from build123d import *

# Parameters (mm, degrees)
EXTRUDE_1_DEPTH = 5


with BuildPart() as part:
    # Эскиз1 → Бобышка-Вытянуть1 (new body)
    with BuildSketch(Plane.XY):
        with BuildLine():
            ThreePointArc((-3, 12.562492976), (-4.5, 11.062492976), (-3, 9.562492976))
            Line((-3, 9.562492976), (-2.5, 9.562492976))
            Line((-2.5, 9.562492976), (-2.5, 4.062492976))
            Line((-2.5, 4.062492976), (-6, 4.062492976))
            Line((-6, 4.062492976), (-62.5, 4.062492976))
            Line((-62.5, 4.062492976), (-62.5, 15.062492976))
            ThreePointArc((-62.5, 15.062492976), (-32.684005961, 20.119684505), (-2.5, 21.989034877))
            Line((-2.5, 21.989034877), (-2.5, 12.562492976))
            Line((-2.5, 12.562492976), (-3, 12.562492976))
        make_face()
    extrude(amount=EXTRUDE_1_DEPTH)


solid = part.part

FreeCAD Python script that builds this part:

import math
import FreeCAD as App
import Part
import Sketcher
from FreeCAD import Vector
Q = App.Units.Quantity

doc = App.newDocument("Part")
body = doc.addObject("PartDesign::Body", "Body")

# Sketch on XY plane
sketch1 = doc.addObject("Sketcher::SketchObject", "Sketch")
body.addObject(sketch1)
sketch1.AttachmentSupport = (doc.XY_Plane, [""])
sketch1.MapMode = "FlatFace"
sketch1.addGeometry(Part.ArcOfCircle(Part.Circle(Vector(-3, 11.1, 0), Vector(0, 0, 1), 1.5), math.radians(90), math.radians(270)), False)
sketch1.addGeometry(Part.LineSegment(Vector(-3, 12.6, 0), Vector(-2.5, 12.6, 0)), False)
sketch1.addGeometry(Part.LineSegment(Vector(-2.5, 12.6, 0), Vector(-2.5, 22, 0)), False)
sketch1.addGeometry(Part.ArcOfCircle(Part.Circle(Vector(0, -263, 0), Vector(0, 0, 1), 285), math.radians(90.5), math.radians(102.67)), False)
sketch1.addGeometry(Part.LineSegment(Vector(-62.5, 15.1, 0), Vector(-62.5, 4.1, 0)), False)
sketch1.addGeometry(Part.LineSegment(Vector(-62.5, 4.1, 0), Vector(-2.5, 4.1, 0)), False)
sketch1.addGeometry(Part.LineSegment(Vector(-2.5, 4.1, 0), Vector(-2.5, 9.6, 0)), False)
sketch1.addGeometry(Part.LineSegment(Vector(-2.5, 9.6, 0), Vector(-3, 9.6, 0)), False)
sketch1.addConstraint(Sketcher.Constraint("Tangent", 0, 1, 1, 1))
sketch1.addConstraint(Sketcher.Constraint("Coincident", 1, 2, 2, 1))
sketch1.addConstraint(Sketcher.Constraint("Coincident", 2, 2, 3, 1))
sketch1.addConstraint(Sketcher.Constraint("Coincident", 3, 2, 4, 1))
sketch1.addConstraint(Sketcher.Constraint("Coincident", 4, 2, 5, 1))
sketch1.addConstraint(Sketcher.Constraint("Coincident", 5, 2, 6, 1))
sketch1.addConstraint(Sketcher.Constraint("Coincident", 6, 2, 7, 1))
sketch1.addConstraint(Sketcher.Constraint("Tangent", 7, 2, 0, 2))
sketch1.addConstraint(Sketcher.Constraint("Horizontal", 1))
sketch1.addConstraint(Sketcher.Constraint("Vertical", 2))
sketch1.addConstraint(Sketcher.Constraint("Vertical", 4))
sketch1.addConstraint(Sketcher.Constraint("Horizontal", 5))
sketch1.addConstraint(Sketcher.Constraint("Vertical", 6))
sketch1.addConstraint(Sketcher.Constraint("Horizontal", 7))
sketch1.addConstraint(Sketcher.Constraint("PointOnObject", 3, 3, -2))
sketch1.addConstraint(Sketcher.Constraint("Vertical", 2, 2, 5, 2))
sketch1.addConstraint(Sketcher.Constraint("Radius", 3, Q("285 mm")))
sketch1.addConstraint(Sketcher.Constraint("Radius", 0, Q("1.5 mm")))
sketch1.addConstraint(Sketcher.Constraint("DistanceX", 5, 1, 5, 2, Q("60 mm")))
sketch1.addConstraint(Sketcher.Constraint("DistanceY", 4, 2, 4, 1, Q("11 mm")))
sketch1.addConstraint(Sketcher.Constraint("DistanceX", 1, 1, 1, 2, Q("0.5 mm")))
sketch1.addConstraint(Sketcher.Constraint("DistanceY", 6, 1, 6, 2, Q("5.5 mm")))
sketch1.addConstraint(Sketcher.Constraint("DistanceX", 0, 3, -1, 1, Q("3 mm")))
sketch1.addConstraint(Sketcher.Constraint("DistanceY", 3, 3, -1, 1, Q("263 mm")))
pad1 = doc.addObject("PartDesign::Pad", "Pad")
body.addObject(pad1)
pad1.Profile = sketch1
pad1.Length = 5

doc.recompute()
